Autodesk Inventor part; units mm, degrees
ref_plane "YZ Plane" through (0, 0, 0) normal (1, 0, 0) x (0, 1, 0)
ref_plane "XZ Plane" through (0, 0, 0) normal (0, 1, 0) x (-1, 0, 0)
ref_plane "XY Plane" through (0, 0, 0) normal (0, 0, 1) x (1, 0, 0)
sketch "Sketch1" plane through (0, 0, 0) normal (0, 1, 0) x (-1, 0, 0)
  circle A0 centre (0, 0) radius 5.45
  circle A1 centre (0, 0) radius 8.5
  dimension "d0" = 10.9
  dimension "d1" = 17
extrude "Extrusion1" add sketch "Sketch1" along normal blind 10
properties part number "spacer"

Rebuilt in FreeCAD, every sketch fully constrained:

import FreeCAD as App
import Part
import Sketcher
Q = App.Units.Quantity

doc = App.newDocument("Part")
body = doc.addObject("PartDesign::Body", "Body")

# Sketch on XZ plane
sketch1 = body.newObject("Sketcher::SketchObject", "Sketch")
sketch1.AttachmentSupport = (doc.getObject("XZ_Plane"), [""])
sketch1.MapMode = "FlatFace"
sketch1.addGeometry(Part.Circle(App.Vector(0, 0, 0), App.Vector(0, 0, 1), 8), False)
sketch1.addGeometry(Part.Circle(App.Vector(0, 0, 0), App.Vector(0, 0, 1), 5), False)
sketch1.addConstraint(Sketcher.Constraint("Coincident", 0, 3, -1, 1))
sketch1.addConstraint(Sketcher.Constraint("Coincident", 1, 3, -1, 1))
sketch1.addConstraint(Sketcher.Constraint("Diameter", 0, Q("17 mm")))
sketch1.addConstraint(Sketcher.Constraint("Diameter", 1, Q("10.9 mm")))
pad1 = body.newObject("PartDesign::Pad", "Pad")
pad1.Profile = sketch1
pad1.Length = 10
pad1.Reversed = True

doc.recompute()
